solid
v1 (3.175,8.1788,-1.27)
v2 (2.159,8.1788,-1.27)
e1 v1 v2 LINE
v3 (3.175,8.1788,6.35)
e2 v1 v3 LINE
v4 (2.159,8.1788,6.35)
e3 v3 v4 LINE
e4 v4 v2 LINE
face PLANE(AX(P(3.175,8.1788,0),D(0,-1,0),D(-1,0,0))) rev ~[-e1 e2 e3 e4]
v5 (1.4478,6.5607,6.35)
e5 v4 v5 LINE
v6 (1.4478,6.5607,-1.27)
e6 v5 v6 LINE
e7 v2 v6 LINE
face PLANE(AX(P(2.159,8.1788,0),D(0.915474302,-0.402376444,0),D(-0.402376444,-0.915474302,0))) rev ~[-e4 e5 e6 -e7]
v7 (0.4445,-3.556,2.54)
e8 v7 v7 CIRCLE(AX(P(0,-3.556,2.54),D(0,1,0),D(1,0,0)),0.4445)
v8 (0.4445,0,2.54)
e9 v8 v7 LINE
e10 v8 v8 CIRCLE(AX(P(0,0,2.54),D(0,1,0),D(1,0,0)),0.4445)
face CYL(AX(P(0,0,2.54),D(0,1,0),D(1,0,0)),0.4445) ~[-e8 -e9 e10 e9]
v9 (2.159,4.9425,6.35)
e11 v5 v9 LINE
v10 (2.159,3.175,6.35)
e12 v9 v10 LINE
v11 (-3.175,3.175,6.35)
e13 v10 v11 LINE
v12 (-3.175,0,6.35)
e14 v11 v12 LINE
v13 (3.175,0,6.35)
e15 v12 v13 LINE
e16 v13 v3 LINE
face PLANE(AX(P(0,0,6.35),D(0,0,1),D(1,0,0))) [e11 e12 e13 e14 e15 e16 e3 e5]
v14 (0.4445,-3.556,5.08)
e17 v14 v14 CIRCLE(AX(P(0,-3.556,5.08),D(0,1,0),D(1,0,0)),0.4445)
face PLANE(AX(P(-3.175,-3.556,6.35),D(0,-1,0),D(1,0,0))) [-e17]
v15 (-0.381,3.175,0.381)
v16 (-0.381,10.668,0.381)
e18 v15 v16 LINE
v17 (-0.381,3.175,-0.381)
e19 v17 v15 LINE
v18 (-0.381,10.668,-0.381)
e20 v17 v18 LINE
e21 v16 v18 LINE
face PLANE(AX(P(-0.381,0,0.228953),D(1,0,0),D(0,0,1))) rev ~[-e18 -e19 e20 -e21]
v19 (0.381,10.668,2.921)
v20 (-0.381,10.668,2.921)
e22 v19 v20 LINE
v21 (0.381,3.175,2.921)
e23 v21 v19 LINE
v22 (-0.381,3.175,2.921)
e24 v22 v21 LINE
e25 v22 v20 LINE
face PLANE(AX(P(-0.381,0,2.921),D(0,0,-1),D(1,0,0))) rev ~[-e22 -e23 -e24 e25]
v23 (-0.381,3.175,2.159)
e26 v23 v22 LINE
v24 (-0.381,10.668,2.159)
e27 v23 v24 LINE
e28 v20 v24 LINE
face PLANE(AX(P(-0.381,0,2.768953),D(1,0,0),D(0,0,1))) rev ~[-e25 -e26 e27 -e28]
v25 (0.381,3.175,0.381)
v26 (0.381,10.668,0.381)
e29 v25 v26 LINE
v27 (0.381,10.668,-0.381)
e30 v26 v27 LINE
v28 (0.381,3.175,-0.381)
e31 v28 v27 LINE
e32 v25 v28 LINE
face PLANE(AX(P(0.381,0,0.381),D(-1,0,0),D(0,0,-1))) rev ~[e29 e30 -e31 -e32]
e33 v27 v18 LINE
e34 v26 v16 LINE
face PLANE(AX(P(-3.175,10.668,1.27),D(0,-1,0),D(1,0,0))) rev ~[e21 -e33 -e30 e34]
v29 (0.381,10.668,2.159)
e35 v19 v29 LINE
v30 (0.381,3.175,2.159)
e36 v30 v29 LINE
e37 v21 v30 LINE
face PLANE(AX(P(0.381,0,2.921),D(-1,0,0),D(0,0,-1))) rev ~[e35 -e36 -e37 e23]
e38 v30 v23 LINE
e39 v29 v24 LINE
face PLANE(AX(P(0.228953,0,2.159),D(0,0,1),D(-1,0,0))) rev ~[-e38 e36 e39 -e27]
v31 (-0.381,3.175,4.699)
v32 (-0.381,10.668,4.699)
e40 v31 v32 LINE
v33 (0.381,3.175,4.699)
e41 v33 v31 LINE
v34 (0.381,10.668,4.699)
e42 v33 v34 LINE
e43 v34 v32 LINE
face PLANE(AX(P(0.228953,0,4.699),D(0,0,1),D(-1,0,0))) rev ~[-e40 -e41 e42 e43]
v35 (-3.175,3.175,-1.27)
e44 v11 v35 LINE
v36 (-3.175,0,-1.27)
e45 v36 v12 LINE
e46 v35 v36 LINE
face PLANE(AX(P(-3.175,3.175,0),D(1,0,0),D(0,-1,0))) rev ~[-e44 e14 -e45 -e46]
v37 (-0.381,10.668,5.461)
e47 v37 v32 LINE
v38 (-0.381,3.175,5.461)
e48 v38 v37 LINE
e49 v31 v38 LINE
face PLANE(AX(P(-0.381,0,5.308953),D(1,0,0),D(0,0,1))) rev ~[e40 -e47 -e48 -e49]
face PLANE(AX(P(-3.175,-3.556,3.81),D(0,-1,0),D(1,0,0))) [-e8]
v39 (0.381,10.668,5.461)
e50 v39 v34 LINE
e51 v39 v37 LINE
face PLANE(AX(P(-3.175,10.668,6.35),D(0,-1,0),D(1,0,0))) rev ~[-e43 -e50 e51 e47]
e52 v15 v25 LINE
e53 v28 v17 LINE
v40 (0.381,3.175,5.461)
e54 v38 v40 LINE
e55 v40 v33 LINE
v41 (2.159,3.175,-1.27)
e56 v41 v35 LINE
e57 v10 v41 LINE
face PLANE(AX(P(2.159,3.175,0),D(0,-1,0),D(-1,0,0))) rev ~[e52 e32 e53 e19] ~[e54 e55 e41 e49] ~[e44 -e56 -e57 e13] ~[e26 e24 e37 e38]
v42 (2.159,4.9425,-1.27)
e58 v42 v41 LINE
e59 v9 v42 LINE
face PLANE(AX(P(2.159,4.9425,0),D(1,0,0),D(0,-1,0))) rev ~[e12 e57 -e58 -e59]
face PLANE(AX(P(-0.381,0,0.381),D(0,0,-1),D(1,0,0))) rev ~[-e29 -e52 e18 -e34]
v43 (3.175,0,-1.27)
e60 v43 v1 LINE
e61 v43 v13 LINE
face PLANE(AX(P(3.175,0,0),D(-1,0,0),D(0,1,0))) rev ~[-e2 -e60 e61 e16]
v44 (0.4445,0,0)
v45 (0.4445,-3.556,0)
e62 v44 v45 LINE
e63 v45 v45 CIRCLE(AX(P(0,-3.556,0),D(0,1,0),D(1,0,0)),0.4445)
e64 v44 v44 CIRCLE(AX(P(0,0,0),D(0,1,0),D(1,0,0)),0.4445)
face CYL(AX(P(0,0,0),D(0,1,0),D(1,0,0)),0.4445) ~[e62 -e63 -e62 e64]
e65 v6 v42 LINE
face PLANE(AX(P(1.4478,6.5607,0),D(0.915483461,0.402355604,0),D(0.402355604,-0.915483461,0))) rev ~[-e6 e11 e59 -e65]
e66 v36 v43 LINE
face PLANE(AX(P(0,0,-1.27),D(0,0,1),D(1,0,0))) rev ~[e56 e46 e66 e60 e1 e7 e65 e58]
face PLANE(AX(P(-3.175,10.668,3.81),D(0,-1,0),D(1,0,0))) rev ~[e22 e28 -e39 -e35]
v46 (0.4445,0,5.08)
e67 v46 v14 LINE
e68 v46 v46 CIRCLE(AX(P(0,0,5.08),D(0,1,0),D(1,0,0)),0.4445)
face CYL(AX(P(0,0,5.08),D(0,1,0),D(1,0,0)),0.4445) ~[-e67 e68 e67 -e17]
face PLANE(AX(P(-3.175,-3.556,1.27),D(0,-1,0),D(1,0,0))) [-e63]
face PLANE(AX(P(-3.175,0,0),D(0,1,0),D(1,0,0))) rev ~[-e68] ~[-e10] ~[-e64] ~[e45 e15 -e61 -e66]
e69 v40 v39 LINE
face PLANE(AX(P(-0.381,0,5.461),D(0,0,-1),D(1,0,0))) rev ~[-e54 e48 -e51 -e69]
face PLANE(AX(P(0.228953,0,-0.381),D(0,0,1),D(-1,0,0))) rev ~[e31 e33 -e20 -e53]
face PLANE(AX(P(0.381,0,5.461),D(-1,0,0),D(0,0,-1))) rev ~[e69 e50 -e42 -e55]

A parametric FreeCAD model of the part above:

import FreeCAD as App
import Part
import Sketcher
from FreeCAD import Vector
Q = App.Units.Quantity

doc = App.newDocument("Part")
body = doc.addObject("PartDesign::Body", "Body")

sketch1 = doc.addObject("Sketcher::SketchObject", "Sketch")
body.addObject(sketch1)
sketch1.AttachmentSupport = (doc.XY_Plane, [""])
sketch1.MapMode = "FlatFace"
sketch1.addGeometry([
    Part.LineSegment(Vector(-3.2, 3.2, 0), Vector(-3.2, 0, 0)),
    Part.LineSegment(Vector(-3.2, 0, 0), Vector(3.2, 0, 0)),
    Part.LineSegment(Vector(3.2, 0, 0), Vector(3.2, 8.2, 0)),
    Part.LineSegment(Vector(3.2, 8.2, 0), Vector(2.2, 8.2, 0)),
    Part.LineSegment(Vector(2.2, 8.2, 0), Vector(1.4, 6.6, 0)),
    Part.LineSegment(Vector(1.4, 6.6, 0), Vector(2.2, 4.9, 0)),
    Part.LineSegment(Vector(2.2, 4.9, 0), Vector(2.2, 3.2, 0)),
    Part.LineSegment(Vector(2.2, 3.2, 0), Vector(-3.2, 3.2, 0)),
], False)
sketch1.addConstraint([
    Sketcher.Constraint("Coincident", 0, 2, 1, 1),
    Sketcher.Constraint("Coincident", 1, 2, 2, 1),
    Sketcher.Constraint("Coincident", 2, 2, 3, 1),
    Sketcher.Constraint("Coincident", 3, 2, 4, 1),
    Sketcher.Constraint("Coincident", 4, 2, 5, 1),
    Sketcher.Constraint("Coincident", 5, 2, 6, 1),
    Sketcher.Constraint("Coincident", 6, 2, 7, 1),
    Sketcher.Constraint("Coincident", 7, 2, 0, 1),
    Sketcher.Constraint("Vertical", 0),
    Sketcher.Constraint("Horizontal", 1),
    Sketcher.Constraint("Vertical", 2),
    Sketcher.Constraint("Horizontal", 3),
    Sketcher.Constraint("Vertical", 6),
    Sketcher.Constraint("Horizontal", 7),
    Sketcher.Constraint("Symmetric", 0, 2, 1, 2, -1, 1),
    Sketcher.Constraint("Vertical", 3, 2, 5, 2),
    Sketcher.Constraint("Equal", 4, 5),
    Sketcher.Constraint("DistanceX", 1, 1, 1, 2, Q("0.25 in")),
    Sketcher.Constraint("DistanceX", 3, 2, 3, 1, Q("0.04 in")),
    Sketcher.Constraint("DistanceY", 0, 2, 0, 1, Q("0.125 in")),
    Sketcher.Constraint("DistanceY", 2, 1, 2, 2, Q("0.322 in")),
    Sketcher.Constraint("DistanceX", -1, 1, 4, 2, Q("0.057 in")),
    Sketcher.Constraint("Distance", 5, Q("0.0696 in")),
])
pad1 = doc.addObject("PartDesign::Pad", "Pad")
body.addObject(pad1)
pad1.Profile = sketch1
pad1.Length = Q("0.1 in")
pad1.Midplane = True

sketch2 = doc.addObject("Sketcher::SketchObject", "Sketch001")
body.addObject(sketch2)
sketch2.AttachmentSupport = (doc.XZ_Plane, [""])
sketch2.MapMode = "FlatFace"
sketch2.addGeometry(Part.Circle(Vector(0, 0, 0), Vector(0, 0, 1), 0.44), False)
sketch2.addConstraint([
    Sketcher.Constraint("Coincident", 0, 3, -1, 1),
    Sketcher.Constraint("Diameter", 0, Q("0.035 in")),
])
pad2 = doc.addObject("PartDesign::Pad", "Pad001")
body.addObject(pad2)
pad2.Profile = sketch2
pad2.Length = Q("0.14 in")

sketch3 = doc.addObject("Sketcher::SketchObject", "Sketch002")
body.addObject(sketch3)
sketch3.AttachmentSupport = (doc.XZ_Plane, [""])
sketch3.MapMode = "FlatFace"
sketch3.addGeometry([
    Part.LineSegment(Vector(-0.4, 0.4, 0), Vector(-0.4, -0.4, 0)),
    Part.LineSegment(Vector(-0.4, -0.4, 0), Vector(0.4, -0.4, 0)),
    Part.LineSegment(Vector(0.4, -0.4, 0), Vector(0.4, 0.4, 0)),
    Part.LineSegment(Vector(0.4, 0.4, 0), Vector(-0.4, 0.4, 0)),
], False)
sketch3.addConstraint([
    Sketcher.Constraint("Coincident", 0, 2, 1, 1),
    Sketcher.Constraint("Coincident", 1, 2, 2, 1),
    Sketcher.Constraint("Coincident", 2, 2, 3, 1),
    Sketcher.Constraint("Coincident", 3, 2, 0, 1),
    Sketcher.Constraint("Vertical", 0),
    Sketcher.Constraint("Horizontal", 1),
    Sketcher.Constraint("Vertical", 2),
    Sketcher.Constraint("Horizontal", 3),
    Sketcher.Constraint("Symmetric", 0, 2, 2, 2, -1, 1),
    Sketcher.Constraint("Equal", 3, 0),
    Sketcher.Constraint("DistanceX", 1, 1, 1, 2, Q("0.03 in")),
])
pad3 = doc.addObject("PartDesign::Pad", "Pad002")
body.addObject(pad3)
pad3.Profile = sketch3
pad3.Length = Q("0.42 in")
pad3.Reversed = True
doc.recompute()

linearpattern = doc.addObject("PartDesign::LinearPattern", "LinearPattern")
body.addObject(linearpattern)
linearpattern.Originals = [pad1, pad2, pad3]
linearpattern.Direction = (doc.Z_Axis, [""])
linearpattern.Mode = "offset"
linearpattern.Offset = Q("0.1 in")
linearpattern.Occurrences = 3
body.Tip = linearpattern

doc.recompute()
